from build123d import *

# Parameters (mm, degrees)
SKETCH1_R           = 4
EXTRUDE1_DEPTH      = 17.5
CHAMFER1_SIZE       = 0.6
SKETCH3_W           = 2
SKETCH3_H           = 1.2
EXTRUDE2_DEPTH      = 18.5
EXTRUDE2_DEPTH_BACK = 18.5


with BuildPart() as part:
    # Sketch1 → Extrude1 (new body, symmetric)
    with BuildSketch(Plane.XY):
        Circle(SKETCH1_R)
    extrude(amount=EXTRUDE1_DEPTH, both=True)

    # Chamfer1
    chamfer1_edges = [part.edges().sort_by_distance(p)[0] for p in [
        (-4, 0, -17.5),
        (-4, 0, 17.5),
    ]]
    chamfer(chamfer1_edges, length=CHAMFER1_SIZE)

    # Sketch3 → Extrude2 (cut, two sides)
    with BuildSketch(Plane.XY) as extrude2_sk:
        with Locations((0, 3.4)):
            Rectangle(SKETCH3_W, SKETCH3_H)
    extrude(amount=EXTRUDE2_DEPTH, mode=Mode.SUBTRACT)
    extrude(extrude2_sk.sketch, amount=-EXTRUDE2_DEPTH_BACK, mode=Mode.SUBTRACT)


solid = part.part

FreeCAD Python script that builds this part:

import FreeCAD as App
import Part
import Sketcher
from FreeCAD import Vector
Q = App.Units.Quantity


def edges_at(feature, points):
    """Names of the edges that pass closest to the given points."""
    edges = feature.Shape.Edges
    near = lambda p: min(range(len(edges)), key=lambda i: edges[i].distToShape(Part.Vertex(*p))[0])
    return sorted({f"Edge{near(p) + 1}" for p in points})


def add_polygon(sketch, points):
    """Adds a closed chain of lines whose ends are joined by coincident constraints."""
    first, n = sketch.GeometryCount, len(points)
    for a, b in zip(points, points[1:] + points[:1]):
        sketch.addGeometry(Part.LineSegment(App.Vector(*a, 0), App.Vector(*b, 0)), False)
    for i in range(n):
        sketch.addConstraint(Sketcher.Constraint("Coincident", first + i, 2, first + (i + 1) % n, 1))

doc = App.newDocument("Part")
body = doc.addObject("PartDesign::Body", "Body")

sketch1 = doc.addObject("Sketcher::SketchObject", "Sketch")
body.addObject(sketch1)
sketch1.AttachmentSupport = (doc.XY_Plane, [""])
sketch1.MapMode = "FlatFace"
sketch1.addGeometry(Part.Circle(Vector(0, 0, 0), Vector(0, 0, 1), 4), False)
sketch1.addConstraint([
    Sketcher.Constraint("Coincident", 0, 3, -1, 1),
    Sketcher.Constraint("Diameter", 0, Q("8 mm")),
])
pad1 = doc.addObject("PartDesign::Pad", "Pad")
body.addObject(pad1)
pad1.Profile = sketch1
pad1.Length = 35
pad1.Midplane = True
doc.recompute()

chamfer = doc.addObject("PartDesign::Chamfer", "Chamfer")
body.addObject(chamfer)
chamfer.Base = (pad1, edges_at(pad1, [(-4, 0, -17.5), (-4, 0, 17.5)]))
chamfer.Size = 0.6

sketch2 = doc.addObject("Sketcher::SketchObject", "Sketch001")
body.addObject(sketch2)
sketch2.AttachmentSupport = (doc.XY_Plane, [""])
sketch2.MapMode = "FlatFace"
add_polygon(sketch2, [(-1, 4), (-1, 2.8), (1, 2.8), (1, 4)])
sketch2.addConstraint([
    Sketcher.Constraint("Vertical", 0),
    Sketcher.Constraint("Horizontal", 1),
    Sketcher.Constraint("Vertical", 2),
    Sketcher.Constraint("Horizontal", 3),
    Sketcher.Constraint("DistanceX", 1, 1, 1, 2, Q("2 mm")),
    Sketcher.Constraint("DistanceY", 0, 2, 0, 1, Q("1.2 mm")),
    Sketcher.Constraint("DistanceX", 0, 2, -1, 1, Q("1 mm")),
    Sketcher.Constraint("DistanceY", -1, 1, 2, 2, Q("4 mm")),
])
pocket1 = doc.addObject("PartDesign::Pocket", "Pocket")
body.addObject(pocket1)
pocket1.Profile = sketch2
pocket1.Type = "ThroughAll"
pocket1.Midplane = True

doc.recompute()
